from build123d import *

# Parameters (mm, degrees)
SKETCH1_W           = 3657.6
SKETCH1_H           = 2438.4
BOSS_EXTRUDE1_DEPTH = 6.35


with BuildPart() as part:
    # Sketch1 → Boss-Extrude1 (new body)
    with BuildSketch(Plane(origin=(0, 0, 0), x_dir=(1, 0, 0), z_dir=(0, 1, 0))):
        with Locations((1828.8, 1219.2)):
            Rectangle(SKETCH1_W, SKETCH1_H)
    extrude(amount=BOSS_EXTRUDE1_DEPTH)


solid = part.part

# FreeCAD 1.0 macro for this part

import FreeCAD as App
import Part
import Sketcher

V = App.Vector
Q = App.Units.Quantity


def add_polygon(sketch, points):
    """Adds a closed chain of lines whose ends are joined by coincident constraints."""
    first, n = sketch.GeometryCount, len(points)
    for a, b in zip(points, points[1:] + points[:1]):
        sketch.addGeometry(Part.LineSegment(App.Vector(*a, 0), App.Vector(*b, 0)), False)
    for i in range(n):
        sketch.addConstraint(Sketcher.Constraint("Coincident", first + i, 2, first + (i + 1) % n, 1))

doc = App.newDocument("Part")
body = doc.addObject("PartDesign::Body", "Body")

sketch1 = body.newObject("Sketcher::SketchObject", "Sketch")
sketch1.AttachmentSupport = (doc.getObject("XZ_Plane"), [""])
sketch1.MapMode = "FlatFace"
add_polygon(sketch1, [(0, -2438), (0, 0), (3658, 0), (3658, -2438)])
sketch1.addConstraint(Sketcher.Constraint("Vertical", 0))
sketch1.addConstraint(Sketcher.Constraint("Horizontal", 1))
sketch1.addConstraint(Sketcher.Constraint("Vertical", 2))
sketch1.addConstraint(Sketcher.Constraint("Horizontal", 3))
sketch1.addConstraint(Sketcher.Constraint("Coincident", 0, 2, -1, 1))
sketch1.addConstraint(Sketcher.Constraint("DistanceX", 1, 1, 1, 2, Q("144 in")))
sketch1.addConstraint(Sketcher.Constraint("DistanceY", 0, 1, 0, 2, Q("96 in")))
pad1 = body.newObject("PartDesign::Pad", "Pad")
pad1.Profile = sketch1
pad1.Length = Q("0.25 in")
pad1.Reversed = True

doc.recompute()
